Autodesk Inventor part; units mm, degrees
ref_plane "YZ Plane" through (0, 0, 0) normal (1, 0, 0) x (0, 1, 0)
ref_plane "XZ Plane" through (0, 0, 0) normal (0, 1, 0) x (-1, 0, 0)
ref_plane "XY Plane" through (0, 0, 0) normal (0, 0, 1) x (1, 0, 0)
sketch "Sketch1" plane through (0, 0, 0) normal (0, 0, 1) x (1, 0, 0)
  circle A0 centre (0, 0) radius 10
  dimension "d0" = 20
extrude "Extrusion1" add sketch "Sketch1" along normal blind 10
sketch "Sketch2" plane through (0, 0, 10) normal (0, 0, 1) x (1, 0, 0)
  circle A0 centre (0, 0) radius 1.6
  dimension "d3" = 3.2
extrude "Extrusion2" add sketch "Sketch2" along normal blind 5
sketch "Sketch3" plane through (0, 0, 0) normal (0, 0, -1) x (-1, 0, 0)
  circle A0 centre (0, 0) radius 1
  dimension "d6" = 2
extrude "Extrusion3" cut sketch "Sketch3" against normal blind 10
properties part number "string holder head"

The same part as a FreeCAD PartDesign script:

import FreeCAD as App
import Part
import Sketcher

V = App.Vector
Q = App.Units.Quantity

doc = App.newDocument("Part")
params = doc.addObject("Spreadsheet::Sheet", "Params")
for row, (alias, value) in enumerate([
    ("sketch1_diameter", "20 mm"),
    ("pad1_length", "10 mm"),
    ("sketch2_diameter", "3.2 mm"),
    ("pad2_length", "5 mm"),
    ("sketch3_diameter", "2 mm"),
    ("pocket1_length", "10 mm"),
], start=1):
    params.set(f"A{row}", alias)
    params.set(f"B{row}", "=" + value)
    params.setAlias(f"B{row}", alias)

body = doc.addObject("PartDesign::Body", "Body")

sketch1 = body.newObject("Sketcher::SketchObject", "Sketch")
sketch1.AttachmentSupport = (doc.getObject("XY_Plane"), [""])
sketch1.MapMode = "FlatFace"
sketch1.addGeometry(Part.Circle(V(0, 0, 0), V(0, 0, 1), 10), False)
sketch1.addConstraint(Sketcher.Constraint("Coincident", 0, 3, -1, 1))
sketch1.addConstraint(Sketcher.Constraint("Diameter", 0, Q("20 mm")))
sketch1.setExpression("Constraints[1]", "Params.sketch1_diameter")
pad1 = body.newObject("PartDesign::Pad", "Pad")
pad1.Profile = sketch1
pad1.setExpression("Length", "Params.pad1_length")

sketch2 = body.newObject("Sketcher::SketchObject", "Sketch001")
sketch2.AttachmentSupport = (doc.getObject("XY_Plane"), [""])
sketch2.MapMode = "FlatFace"
sketch2.AttachmentOffset = App.Placement(V(0, 0, 10), App.Rotation())
sketch2.addGeometry(Part.Circle(V(0, 0, 0), V(0, 0, 1), 1.6), False)
sketch2.addConstraint(Sketcher.Constraint("Coincident", 0, 3, -1, 1))
sketch2.addConstraint(Sketcher.Constraint("Diameter", 0, Q("3.2 mm")))
sketch2.setExpression("Constraints[1]", "Params.sketch2_diameter")
pad2 = body.newObject("PartDesign::Pad", "Pad001")
pad2.Profile = sketch2
pad2.setExpression("Length", "Params.pad2_length")

sketch3 = body.newObject("Sketcher::SketchObject", "Sketch002")
sketch3.AttachmentSupport = (doc.getObject("XY_Plane"), [""])
sketch3.MapMode = "FlatFace"
sketch3.addGeometry(Part.Circle(V(0, 0, 0), V(0, 0, 1), 1), False)
sketch3.addConstraint(Sketcher.Constraint("Coincident", 0, 3, -1, 1))
sketch3.addConstraint(Sketcher.Constraint("Diameter", 0, Q("2 mm")))
sketch3.setExpression("Constraints[1]", "Params.sketch3_diameter")
pocket1 = body.newObject("PartDesign::Pocket", "Pocket")
pocket1.Profile = sketch3
pocket1.setExpression("Length", "Params.pocket1_length")
pocket1.Reversed = True

doc.recompute()
